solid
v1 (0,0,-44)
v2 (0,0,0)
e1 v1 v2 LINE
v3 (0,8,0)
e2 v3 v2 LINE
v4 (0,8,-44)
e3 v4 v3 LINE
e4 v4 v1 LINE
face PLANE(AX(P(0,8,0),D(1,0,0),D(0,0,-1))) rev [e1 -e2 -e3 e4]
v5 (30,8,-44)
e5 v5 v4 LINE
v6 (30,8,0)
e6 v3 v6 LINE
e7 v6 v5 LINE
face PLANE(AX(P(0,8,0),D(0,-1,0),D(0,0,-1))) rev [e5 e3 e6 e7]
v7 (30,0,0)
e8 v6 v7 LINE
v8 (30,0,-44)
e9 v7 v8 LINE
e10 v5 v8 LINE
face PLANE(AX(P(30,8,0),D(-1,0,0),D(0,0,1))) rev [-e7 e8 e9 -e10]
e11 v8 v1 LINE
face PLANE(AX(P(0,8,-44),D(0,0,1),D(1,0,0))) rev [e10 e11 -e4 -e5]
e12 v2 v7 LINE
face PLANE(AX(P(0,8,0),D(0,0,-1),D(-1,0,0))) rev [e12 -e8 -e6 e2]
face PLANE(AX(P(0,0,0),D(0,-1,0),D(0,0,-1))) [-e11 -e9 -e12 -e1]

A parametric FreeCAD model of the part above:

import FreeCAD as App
import Part
import Sketcher
from FreeCAD import Vector
Q = App.Units.Quantity

doc = App.newDocument("Part")
body = doc.addObject("PartDesign::Body", "Body")

# Sketch on XZ plane
sketch1 = body.newObject("Sketcher::SketchObject", "Sketch")
sketch1.AttachmentSupport = (doc.getObject("XZ_Plane"), [""])
sketch1.MapMode = "FlatFace"
sketch1.addGeometry(Part.LineSegment(Vector(0, -44, 0), Vector(0, 0, 0)), False)
sketch1.addGeometry(Part.LineSegment(Vector(0, 0, 0), Vector(30, 0, 0)), False)
sketch1.addGeometry(Part.LineSegment(Vector(30, 0, 0), Vector(30, -44, 0)), False)
sketch1.addGeometry(Part.LineSegment(Vector(30, -44, 0), Vector(0, -44, 0)), False)
sketch1.addConstraint(Sketcher.Constraint("Coincident", 0, 2, 1, 1))
sketch1.addConstraint(Sketcher.Constraint("Coincident", 1, 2, 2, 1))
sketch1.addConstraint(Sketcher.Constraint("Coincident", 2, 2, 3, 1))
sketch1.addConstraint(Sketcher.Constraint("Coincident", 3, 2, 0, 1))
sketch1.addConstraint(Sketcher.Constraint("Vertical", 0))
sketch1.addConstraint(Sketcher.Constraint("Horizontal", 1))
sketch1.addConstraint(Sketcher.Constraint("Vertical", 2))
sketch1.addConstraint(Sketcher.Constraint("Horizontal", 3))
sketch1.addConstraint(Sketcher.Constraint("Coincident", 0, 2, -1, 1))
sketch1.addConstraint(Sketcher.Constraint("DistanceX", 1, 1, 1, 2, Q("30 mm")))
sketch1.addConstraint(Sketcher.Constraint("DistanceY", 0, 1, 0, 2, Q("44 mm")))
pad1 = body.newObject("PartDesign::Pad", "Pad")
pad1.Profile = sketch1
pad1.Length = 8
pad1.Reversed = True

doc.recompute()
